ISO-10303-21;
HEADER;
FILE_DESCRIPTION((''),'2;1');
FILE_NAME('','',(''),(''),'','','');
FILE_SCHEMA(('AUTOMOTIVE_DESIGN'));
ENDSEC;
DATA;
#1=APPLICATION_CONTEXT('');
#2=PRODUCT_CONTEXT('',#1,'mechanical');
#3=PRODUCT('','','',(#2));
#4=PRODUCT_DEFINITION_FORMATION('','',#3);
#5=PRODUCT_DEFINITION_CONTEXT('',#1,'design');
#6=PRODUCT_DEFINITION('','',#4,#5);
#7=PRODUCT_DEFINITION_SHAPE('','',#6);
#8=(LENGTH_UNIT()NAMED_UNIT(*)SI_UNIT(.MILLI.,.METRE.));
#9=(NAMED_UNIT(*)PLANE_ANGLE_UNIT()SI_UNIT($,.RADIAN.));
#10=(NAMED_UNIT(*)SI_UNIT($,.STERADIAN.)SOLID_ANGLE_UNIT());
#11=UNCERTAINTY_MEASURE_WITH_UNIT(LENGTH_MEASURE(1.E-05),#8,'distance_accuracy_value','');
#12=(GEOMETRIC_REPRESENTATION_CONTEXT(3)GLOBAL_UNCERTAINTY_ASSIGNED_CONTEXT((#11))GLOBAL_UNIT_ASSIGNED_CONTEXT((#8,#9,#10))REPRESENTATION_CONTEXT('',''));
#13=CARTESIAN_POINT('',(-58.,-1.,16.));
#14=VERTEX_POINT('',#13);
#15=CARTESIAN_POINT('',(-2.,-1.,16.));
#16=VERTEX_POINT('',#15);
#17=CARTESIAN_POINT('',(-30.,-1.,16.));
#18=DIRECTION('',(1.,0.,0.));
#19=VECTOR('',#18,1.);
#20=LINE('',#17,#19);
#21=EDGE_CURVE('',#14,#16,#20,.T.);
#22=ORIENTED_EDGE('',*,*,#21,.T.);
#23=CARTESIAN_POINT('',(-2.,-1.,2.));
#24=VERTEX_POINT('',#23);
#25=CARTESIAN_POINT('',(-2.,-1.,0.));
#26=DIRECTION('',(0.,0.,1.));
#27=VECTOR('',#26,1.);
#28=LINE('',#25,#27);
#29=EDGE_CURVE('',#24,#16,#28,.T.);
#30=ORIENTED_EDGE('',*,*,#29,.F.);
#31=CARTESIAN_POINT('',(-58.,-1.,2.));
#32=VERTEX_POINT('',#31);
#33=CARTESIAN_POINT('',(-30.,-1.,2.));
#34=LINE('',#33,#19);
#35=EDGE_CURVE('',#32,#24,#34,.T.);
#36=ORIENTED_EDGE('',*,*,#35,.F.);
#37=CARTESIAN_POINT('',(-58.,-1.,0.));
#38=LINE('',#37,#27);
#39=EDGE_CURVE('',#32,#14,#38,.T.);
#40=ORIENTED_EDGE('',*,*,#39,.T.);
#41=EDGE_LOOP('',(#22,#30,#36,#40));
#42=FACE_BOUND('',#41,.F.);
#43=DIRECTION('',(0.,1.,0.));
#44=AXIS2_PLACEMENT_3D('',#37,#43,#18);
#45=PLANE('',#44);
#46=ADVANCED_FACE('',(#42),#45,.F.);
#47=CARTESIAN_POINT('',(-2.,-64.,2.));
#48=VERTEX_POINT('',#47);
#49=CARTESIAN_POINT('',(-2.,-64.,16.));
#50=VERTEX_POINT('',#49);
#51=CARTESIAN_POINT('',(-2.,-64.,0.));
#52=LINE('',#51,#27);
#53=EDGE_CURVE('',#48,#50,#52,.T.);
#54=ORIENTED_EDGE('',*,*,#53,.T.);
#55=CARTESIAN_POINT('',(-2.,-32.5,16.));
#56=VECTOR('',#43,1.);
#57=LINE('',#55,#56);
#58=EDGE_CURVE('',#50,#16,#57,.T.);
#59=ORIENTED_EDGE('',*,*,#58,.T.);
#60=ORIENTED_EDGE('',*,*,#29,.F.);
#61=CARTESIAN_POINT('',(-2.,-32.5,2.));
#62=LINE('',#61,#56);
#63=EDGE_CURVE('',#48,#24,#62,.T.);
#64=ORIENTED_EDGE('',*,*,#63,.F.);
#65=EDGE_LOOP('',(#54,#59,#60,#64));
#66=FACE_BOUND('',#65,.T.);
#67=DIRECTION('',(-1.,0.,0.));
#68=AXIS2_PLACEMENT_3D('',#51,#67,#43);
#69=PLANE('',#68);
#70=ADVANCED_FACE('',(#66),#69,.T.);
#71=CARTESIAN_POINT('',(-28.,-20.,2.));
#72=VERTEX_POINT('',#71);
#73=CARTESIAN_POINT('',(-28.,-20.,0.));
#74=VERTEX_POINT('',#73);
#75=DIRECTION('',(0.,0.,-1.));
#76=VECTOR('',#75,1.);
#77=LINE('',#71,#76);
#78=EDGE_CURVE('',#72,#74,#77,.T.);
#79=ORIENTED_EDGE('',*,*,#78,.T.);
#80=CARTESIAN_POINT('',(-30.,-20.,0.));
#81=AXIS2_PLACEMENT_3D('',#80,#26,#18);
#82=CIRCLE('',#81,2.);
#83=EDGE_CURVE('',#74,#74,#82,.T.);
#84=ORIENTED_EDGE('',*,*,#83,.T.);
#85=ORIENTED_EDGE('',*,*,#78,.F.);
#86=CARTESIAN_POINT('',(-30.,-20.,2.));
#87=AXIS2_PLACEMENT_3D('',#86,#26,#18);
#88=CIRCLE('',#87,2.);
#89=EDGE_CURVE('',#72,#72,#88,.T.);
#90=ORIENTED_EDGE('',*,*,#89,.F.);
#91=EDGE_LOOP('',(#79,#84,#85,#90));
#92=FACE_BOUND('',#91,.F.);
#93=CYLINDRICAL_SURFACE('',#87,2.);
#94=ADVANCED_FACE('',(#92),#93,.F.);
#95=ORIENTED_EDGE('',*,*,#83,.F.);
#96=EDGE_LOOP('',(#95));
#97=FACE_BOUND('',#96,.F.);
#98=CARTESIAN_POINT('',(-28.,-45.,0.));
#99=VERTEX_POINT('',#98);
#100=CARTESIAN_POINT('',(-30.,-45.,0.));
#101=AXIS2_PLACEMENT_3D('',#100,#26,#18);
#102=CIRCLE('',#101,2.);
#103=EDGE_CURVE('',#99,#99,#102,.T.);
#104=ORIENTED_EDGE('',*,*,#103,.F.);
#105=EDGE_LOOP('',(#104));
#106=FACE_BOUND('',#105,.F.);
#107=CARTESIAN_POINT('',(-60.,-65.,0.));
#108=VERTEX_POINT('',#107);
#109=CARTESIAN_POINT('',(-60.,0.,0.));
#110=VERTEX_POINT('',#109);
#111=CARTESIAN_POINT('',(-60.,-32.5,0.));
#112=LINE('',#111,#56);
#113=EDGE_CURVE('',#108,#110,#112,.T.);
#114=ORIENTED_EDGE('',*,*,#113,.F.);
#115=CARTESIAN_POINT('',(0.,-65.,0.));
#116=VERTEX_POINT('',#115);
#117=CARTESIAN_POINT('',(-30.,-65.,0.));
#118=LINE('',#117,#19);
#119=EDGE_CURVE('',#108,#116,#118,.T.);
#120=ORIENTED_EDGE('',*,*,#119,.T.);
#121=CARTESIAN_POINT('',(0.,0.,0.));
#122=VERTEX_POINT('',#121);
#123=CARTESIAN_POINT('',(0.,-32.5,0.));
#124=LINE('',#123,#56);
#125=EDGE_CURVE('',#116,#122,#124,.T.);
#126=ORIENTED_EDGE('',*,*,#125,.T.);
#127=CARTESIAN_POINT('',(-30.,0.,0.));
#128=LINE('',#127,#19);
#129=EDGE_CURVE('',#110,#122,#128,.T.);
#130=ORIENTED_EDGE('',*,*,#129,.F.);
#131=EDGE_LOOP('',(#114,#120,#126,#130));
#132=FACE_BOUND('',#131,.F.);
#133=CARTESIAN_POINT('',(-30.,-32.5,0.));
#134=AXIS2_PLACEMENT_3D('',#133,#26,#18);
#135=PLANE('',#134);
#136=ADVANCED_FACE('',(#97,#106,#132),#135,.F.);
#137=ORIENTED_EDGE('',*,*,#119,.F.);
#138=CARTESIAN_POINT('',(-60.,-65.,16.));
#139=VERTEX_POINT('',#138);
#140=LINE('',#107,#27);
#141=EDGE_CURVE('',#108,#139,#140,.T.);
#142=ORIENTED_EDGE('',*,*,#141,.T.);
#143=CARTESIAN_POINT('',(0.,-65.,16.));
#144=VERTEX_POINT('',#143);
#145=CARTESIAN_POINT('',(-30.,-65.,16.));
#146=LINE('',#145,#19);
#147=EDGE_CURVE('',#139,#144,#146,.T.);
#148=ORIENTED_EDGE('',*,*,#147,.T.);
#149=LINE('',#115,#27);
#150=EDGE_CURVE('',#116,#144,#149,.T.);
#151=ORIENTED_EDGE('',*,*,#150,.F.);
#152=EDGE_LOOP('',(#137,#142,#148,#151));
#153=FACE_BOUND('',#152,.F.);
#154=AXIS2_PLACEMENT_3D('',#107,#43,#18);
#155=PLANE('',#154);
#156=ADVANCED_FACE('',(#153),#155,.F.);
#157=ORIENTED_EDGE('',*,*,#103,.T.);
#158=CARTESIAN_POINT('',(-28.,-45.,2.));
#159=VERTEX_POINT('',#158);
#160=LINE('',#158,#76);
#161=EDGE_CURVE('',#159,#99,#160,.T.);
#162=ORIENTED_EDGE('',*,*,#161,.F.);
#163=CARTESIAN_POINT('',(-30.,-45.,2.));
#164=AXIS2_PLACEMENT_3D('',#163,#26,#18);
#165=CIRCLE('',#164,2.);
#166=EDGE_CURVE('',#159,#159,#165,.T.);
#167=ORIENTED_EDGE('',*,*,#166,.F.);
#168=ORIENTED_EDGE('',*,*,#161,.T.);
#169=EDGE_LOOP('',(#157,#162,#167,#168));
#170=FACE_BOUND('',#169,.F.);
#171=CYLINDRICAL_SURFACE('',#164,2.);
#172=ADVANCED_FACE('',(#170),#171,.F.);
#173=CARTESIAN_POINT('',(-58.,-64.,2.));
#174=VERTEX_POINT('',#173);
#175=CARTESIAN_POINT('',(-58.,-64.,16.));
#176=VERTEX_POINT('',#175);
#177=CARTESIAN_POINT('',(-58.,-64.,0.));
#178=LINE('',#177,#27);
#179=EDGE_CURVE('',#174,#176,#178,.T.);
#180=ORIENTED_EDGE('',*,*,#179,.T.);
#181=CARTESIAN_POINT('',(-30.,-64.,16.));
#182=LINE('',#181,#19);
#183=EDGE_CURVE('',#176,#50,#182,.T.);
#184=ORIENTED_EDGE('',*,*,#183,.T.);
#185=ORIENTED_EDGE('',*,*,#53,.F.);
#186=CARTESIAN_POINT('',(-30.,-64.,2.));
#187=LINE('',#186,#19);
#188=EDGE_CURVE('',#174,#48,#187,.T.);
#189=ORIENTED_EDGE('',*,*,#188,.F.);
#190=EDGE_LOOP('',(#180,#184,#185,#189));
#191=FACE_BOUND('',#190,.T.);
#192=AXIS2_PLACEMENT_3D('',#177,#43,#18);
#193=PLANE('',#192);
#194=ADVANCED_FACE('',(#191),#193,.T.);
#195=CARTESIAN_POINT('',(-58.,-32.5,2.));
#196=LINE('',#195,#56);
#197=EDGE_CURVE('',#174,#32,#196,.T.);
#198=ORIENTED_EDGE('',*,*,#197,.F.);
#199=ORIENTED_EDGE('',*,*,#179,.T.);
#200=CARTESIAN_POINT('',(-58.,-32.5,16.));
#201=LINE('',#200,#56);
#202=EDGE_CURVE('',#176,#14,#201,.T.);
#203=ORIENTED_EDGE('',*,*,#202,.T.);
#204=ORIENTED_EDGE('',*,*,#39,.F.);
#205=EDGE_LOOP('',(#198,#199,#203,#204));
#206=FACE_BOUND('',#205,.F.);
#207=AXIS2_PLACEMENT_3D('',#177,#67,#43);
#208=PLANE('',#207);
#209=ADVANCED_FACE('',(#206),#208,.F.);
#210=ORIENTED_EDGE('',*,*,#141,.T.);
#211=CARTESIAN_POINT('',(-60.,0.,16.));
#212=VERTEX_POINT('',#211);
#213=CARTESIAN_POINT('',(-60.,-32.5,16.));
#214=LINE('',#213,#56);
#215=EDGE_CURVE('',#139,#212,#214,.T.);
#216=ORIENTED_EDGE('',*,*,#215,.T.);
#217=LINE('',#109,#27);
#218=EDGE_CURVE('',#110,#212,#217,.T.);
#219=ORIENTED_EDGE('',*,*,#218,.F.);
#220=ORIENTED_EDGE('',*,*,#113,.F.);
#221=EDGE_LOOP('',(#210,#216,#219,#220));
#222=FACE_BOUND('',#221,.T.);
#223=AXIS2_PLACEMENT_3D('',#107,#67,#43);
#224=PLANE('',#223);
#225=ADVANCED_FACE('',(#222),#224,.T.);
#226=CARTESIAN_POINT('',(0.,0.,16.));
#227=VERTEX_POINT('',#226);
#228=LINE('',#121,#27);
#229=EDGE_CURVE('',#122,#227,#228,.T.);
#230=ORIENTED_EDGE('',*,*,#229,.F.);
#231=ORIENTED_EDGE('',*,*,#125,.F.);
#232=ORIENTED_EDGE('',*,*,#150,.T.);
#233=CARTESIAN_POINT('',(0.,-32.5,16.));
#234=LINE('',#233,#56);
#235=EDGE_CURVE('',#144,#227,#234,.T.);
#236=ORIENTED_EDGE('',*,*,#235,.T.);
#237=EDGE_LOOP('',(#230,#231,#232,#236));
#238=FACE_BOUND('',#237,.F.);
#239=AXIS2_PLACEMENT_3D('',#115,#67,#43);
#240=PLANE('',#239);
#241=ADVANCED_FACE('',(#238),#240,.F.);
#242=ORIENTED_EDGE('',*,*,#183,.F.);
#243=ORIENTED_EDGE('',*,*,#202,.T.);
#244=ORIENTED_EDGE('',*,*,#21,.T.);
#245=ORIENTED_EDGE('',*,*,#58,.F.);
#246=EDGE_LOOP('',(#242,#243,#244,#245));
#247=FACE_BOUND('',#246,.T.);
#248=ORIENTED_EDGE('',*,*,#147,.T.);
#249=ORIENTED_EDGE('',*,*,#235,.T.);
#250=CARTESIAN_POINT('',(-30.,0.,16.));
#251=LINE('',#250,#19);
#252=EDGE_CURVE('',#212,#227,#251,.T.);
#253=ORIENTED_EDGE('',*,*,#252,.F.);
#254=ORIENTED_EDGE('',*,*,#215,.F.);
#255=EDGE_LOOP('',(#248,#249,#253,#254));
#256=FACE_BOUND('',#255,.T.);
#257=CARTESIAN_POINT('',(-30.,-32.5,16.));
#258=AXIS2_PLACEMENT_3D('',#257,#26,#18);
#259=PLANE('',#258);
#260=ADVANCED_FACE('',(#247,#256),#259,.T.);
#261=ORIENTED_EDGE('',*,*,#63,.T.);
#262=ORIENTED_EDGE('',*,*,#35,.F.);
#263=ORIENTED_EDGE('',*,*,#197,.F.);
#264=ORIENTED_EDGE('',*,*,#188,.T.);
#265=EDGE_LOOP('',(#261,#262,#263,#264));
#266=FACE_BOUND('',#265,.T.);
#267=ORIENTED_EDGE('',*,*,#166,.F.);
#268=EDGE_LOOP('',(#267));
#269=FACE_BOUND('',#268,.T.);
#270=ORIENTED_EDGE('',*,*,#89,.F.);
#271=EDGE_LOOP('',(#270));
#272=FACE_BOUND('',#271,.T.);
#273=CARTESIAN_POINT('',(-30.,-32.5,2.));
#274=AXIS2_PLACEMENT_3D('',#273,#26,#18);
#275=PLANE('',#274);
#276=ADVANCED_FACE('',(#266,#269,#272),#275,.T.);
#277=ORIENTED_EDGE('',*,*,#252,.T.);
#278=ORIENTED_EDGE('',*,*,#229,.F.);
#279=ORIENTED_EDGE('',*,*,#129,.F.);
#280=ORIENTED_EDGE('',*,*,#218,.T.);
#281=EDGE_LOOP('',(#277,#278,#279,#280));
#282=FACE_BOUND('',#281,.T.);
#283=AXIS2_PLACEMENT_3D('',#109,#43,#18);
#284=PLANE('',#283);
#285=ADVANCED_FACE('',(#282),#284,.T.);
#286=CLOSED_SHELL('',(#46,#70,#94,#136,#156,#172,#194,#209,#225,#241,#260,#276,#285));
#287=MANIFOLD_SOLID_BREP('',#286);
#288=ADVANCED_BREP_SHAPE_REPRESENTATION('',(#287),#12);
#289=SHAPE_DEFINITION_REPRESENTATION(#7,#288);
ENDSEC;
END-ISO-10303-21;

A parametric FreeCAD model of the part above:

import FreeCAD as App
import Part
import Sketcher
Q = App.Units.Quantity


def add_polygon(sketch, points):
    """Adds a closed chain of lines whose ends are joined by coincident constraints."""
    first, n = sketch.GeometryCount, len(points)
    for a, b in zip(points, points[1:] + points[:1]):
        sketch.addGeometry(Part.LineSegment(App.Vector(*a, 0), App.Vector(*b, 0)), False)
    for i in range(n):
        sketch.addConstraint(Sketcher.Constraint("Coincident", first + i, 2, first + (i + 1) % n, 1))

doc = App.newDocument("Part")
body = doc.addObject("PartDesign::Body", "Body")

sketch1 = doc.addObject("Sketcher::SketchObject", "Sketch")
body.addObject(sketch1)
sketch1.AttachmentSupport = (doc.XY_Plane, [""])
sketch1.MapMode = "FlatFace"
add_polygon(sketch1, [(-58, -1), (-58, -64), (-2, -64), (-2, -1)])
sketch1.addConstraint([
    Sketcher.Constraint("Vertical", 0),
    Sketcher.Constraint("Horizontal", 1),
    Sketcher.Constraint("Vertical", 2),
    Sketcher.Constraint("Horizontal", 3),
    Sketcher.Constraint("DistanceX", 1, 1, 1, 2, Q("56 mm")),
    Sketcher.Constraint("DistanceY", 0, 2, 0, 1, Q("63 mm")),
    Sketcher.Constraint("DistanceX", 0, 2, -1, 1, Q("58 mm")),
    Sketcher.Constraint("DistanceY", 0, 2, -1, 1, Q("64 mm")),
])
pad1 = doc.addObject("PartDesign::Pad", "Pad")
body.addObject(pad1)
pad1.Profile = sketch1
pad1.Length = 2

sketch2 = doc.addObject("Sketcher::SketchObject", "Sketch001")
body.addObject(sketch2)
sketch2.AttachmentSupport = (doc.XY_Plane, [""])
sketch2.MapMode = "FlatFace"
add_polygon(sketch2, [(-60, 0), (-60, -65), (0, -65), (0, 0)])
add_polygon(sketch2, [(-2, -64), (-58, -64), (-58, -1), (-2, -1)])
sketch2.addConstraint([
    Sketcher.Constraint("Vertical", 0),
    Sketcher.Constraint("Horizontal", 1),
    Sketcher.Constraint("Vertical", 2),
    Sketcher.Constraint("Horizontal", 3),
    Sketcher.Constraint("Horizontal", 4),
    Sketcher.Constraint("Vertical", 5),
    Sketcher.Constraint("Horizontal", 6),
    Sketcher.Constraint("Vertical", 7),
    Sketcher.Constraint("Coincident", 2, 2, -1, 1),
    Sketcher.Constraint("DistanceX", 1, 1, 1, 2, Q("60 mm")),
    Sketcher.Constraint("DistanceX", 4, 2, 4, 1, Q("56 mm")),
    Sketcher.Constraint("DistanceY", 0, 2, 0, 1, Q("65 mm")),
    Sketcher.Constraint("DistanceY", 5, 1, 5, 2, Q("63 mm")),
    Sketcher.Constraint("DistanceX", 4, 2, -1, 1, Q("58 mm")),
    Sketcher.Constraint("DistanceY", 4, 2, -1, 1, Q("64 mm")),
])
pad2 = doc.addObject("PartDesign::Pad", "Pad001")
body.addObject(pad2)
pad2.Profile = sketch2
pad2.Length = 16

sketch3 = doc.addObject("Sketcher::SketchObject", "Sketch002")
body.addObject(sketch3)
sketch3.AttachmentSupport = (doc.XY_Plane, [""])
sketch3.MapMode = "FlatFace"
sketch3.AttachmentOffset = App.Placement(App.Vector(0, 0, 2), App.Rotation())
sketch3.addGeometry([
    Part.Circle(App.Vector(-30, -20, 0), App.Vector(0, 0, 1), 2),
    Part.Circle(App.Vector(-30, -45, 0), App.Vector(0, 0, 1), 2),
], False)
sketch3.addConstraint([
    Sketcher.Constraint("Equal", 0, 1),
    Sketcher.Constraint("Vertical", 0, 3, 1, 3),
    Sketcher.Constraint("Diameter", 0, Q("4 mm")),
    Sketcher.Constraint("DistanceX", 0, 3, -1, 1, Q("30 mm")),
    Sketcher.Constraint("DistanceY", 0, 3, -1, 1, Q("20 mm")),
    Sketcher.Constraint("DistanceY", 1, 3, -1, 1, Q("45 mm")),
])
pocket1 = doc.addObject("PartDesign::Pocket", "Pocket")
body.addObject(pocket1)
pocket1.Profile = sketch3
pocket1.Length = 25

doc.recompute()
